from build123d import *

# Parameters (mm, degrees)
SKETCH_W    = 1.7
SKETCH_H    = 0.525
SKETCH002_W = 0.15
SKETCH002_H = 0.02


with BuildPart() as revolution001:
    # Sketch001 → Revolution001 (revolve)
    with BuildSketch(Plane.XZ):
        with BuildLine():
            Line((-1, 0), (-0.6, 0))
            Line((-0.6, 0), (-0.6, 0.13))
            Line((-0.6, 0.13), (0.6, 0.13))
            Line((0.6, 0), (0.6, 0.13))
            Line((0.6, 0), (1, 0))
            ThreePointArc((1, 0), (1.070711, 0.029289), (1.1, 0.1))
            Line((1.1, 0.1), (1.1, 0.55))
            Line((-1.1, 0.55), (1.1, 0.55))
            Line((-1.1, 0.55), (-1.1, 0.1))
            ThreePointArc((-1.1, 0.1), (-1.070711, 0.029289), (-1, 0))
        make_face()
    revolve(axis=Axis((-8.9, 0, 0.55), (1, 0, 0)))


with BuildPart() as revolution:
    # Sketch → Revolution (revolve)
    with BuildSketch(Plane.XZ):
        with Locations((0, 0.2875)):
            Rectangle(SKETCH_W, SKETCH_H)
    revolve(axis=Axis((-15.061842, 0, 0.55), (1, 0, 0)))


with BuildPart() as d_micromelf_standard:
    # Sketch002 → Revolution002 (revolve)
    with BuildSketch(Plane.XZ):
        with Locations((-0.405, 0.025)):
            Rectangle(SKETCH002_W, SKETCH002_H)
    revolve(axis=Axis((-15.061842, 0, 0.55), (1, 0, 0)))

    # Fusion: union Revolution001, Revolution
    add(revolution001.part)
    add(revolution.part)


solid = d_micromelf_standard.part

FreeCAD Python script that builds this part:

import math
import FreeCAD as App
import Part
import Sketcher


def add_polygon(sketch, points):
    """Adds a closed chain of lines whose ends are joined by coincident constraints."""
    first, n = sketch.GeometryCount, len(points)
    for a, b in zip(points, points[1:] + points[:1]):
        sketch.addGeometry(Part.LineSegment(App.Vector(*a, 0), App.Vector(*b, 0)), False)
    for i in range(n):
        sketch.addConstraint(Sketcher.Constraint("Coincident", first + i, 2, first + (i + 1) % n, 1))

doc = App.newDocument("Part")
body = doc.addObject("PartDesign::Body", "Body")

# Sketch on XZ plane
sketch1 = doc.addObject("Sketcher::SketchObject", "Sketch")
body.addObject(sketch1)
sketch1.AttachmentSupport = (doc.XZ_Plane, [""])
sketch1.MapMode = "FlatFace"
sketch1.addGeometry([
    Part.LineSegment(App.Vector(-1, 0, 0), App.Vector(-0.6, 0, 0)),  # 0
    Part.LineSegment(App.Vector(-0.6, 0, 0), App.Vector(-0.6, 0.13, 0)),  # 1
    Part.LineSegment(App.Vector(-0.6, 0.13, 0), App.Vector(0.6, 0.13, 0)),  # 2
    Part.LineSegment(App.Vector(0.6, 0.13, 0), App.Vector(0.6, 0, 0)),  # 3
    Part.LineSegment(App.Vector(0.6, 0, 0), App.Vector(1, 0, 0)),  # 4
    Part.ArcOfCircle(Part.Circle(App.Vector(1, 0.1, 0), App.Vector(0, 0, 1), 0.1), math.radians(-90), math.radians(0)),  # 5
    Part.LineSegment(App.Vector(1.1, 0.1, 0), App.Vector(1.1, 0.55, 0)),  # 6
    Part.LineSegment(App.Vector(1.1, 0.55, 0), App.Vector(-1.1, 0.55, 0)),  # 7
    Part.LineSegment(App.Vector(-1.1, 0.55, 0), App.Vector(-1.1, 0.1, 0)),  # 8
    Part.ArcOfCircle(Part.Circle(App.Vector(-1, 0.1, 0), App.Vector(0, 0, 1), 0.1), math.radians(180), math.radians(270)),  # 9
], False)
sketch1.addGeometry(Part.LineSegment(App.Vector(-1.1, 0.55, 0), App.Vector(1.1, 0.55, 0)), True)  # axis
sketch1.addConstraint([
    Sketcher.Constraint("Coincident", 0, 2, 1, 1),
    Sketcher.Constraint("Coincident", 1, 2, 2, 1),
    Sketcher.Constraint("Coincident", 2, 2, 3, 1),
    Sketcher.Constraint("Coincident", 3, 2, 4, 1),
    Sketcher.Constraint("Coincident", 4, 2, 5, 1),
    Sketcher.Constraint("Coincident", 5, 2, 6, 1),
    Sketcher.Constraint("Coincident", 6, 2, 7, 1),
    Sketcher.Constraint("Coincident", 7, 2, 8, 1),
    Sketcher.Constraint("Coincident", 8, 2, 9, 1),
    Sketcher.Constraint("Coincident", 9, 2, 0, 1),
    Sketcher.Constraint("Horizontal", 0),
    Sketcher.Constraint("Vertical", 1),
    Sketcher.Constraint("Horizontal", 2),
    Sketcher.Constraint("Vertical", 3),
    Sketcher.Constraint("Horizontal", 4),
    Sketcher.Constraint("Vertical", 6),
    Sketcher.Constraint("Horizontal", 7),
    Sketcher.Constraint("Vertical", 8),
    Sketcher.Constraint("Horizontal", 10),
    Sketcher.Constraint("Coincident", 10, 1, 7, 2),
    Sketcher.Constraint("Equal", 5, 9),
    Sketcher.Constraint("Symmetric", 0, 2, 3, 2, -1, 1),
    Sketcher.Constraint("Symmetric", 5, 3, 9, 3, -2),
    Sketcher.Constraint("Horizontal", 9, 3, 5, 2),
    Sketcher.Constraint("Horizontal", 5, 2, 8, 2),
    Sketcher.Constraint("Vertical", 5, 3, 4, 2),
    Sketcher.Constraint("Vertical", 5, 2, 10, 2),
    Sketcher.Constraint("Equal", 0, 4),
    Sketcher.Constraint("Radius", 5, 0.099999),
    Sketcher.Constraint("DistanceX", 0, 1, 0, 2, 0.4),
    Sketcher.Constraint("DistanceX", 2, 1, 2, 2, 1.2),
    Sketcher.Constraint("DistanceY", 1, 1, 1, 2, 0.13),
    Sketcher.Constraint("DistanceY", 6, 1, 6, 2, 0.45),
])
revolution = doc.addObject("PartDesign::Revolution", "Revolution")
body.addObject(revolution)
revolution.Profile = sketch1
revolution.ReferenceAxis = (sketch1, ["Axis0"])
revolution.Angle = 360
body2 = doc.addObject("PartDesign::Body", "Body001")

# Sketch on XZ plane
sketch2 = doc.addObject("Sketcher::SketchObject", "Sketch001")
body2.addObject(sketch2)
sketch2.AttachmentSupport = (doc.getObject("XZ_Plane001"), [""])
sketch2.MapMode = "FlatFace"
add_polygon(sketch2, [(-0.8, 0.6), (-0.8, 0), (0.8, 0), (0.8, 0.6)])  # lines 0-3
sketch2.addGeometry(Part.LineSegment(App.Vector(-0.8, 0.6, 0), App.Vector(0.8, 0.6, 0)), True)  # axis
sketch2.addConstraint([
    Sketcher.Constraint("Vertical", 0),
    Sketcher.Constraint("Horizontal", 1),
    Sketcher.Constraint("Vertical", 2),
    Sketcher.Constraint("Horizontal", 3),
    Sketcher.Constraint("Horizontal", 4),
    Sketcher.Constraint("Coincident", 4, 1, 3, 2),
    Sketcher.Constraint("Vertical", 1, 2, 4, 2),
    Sketcher.Constraint("DistanceX", 1, 1, 1, 2, 1.7),
    Sketcher.Constraint("DistanceY", 0, 2, 0, 1, 0.525),
    Sketcher.Constraint("DistanceX", 0, 2, -1, 1, 0.85),
    Sketcher.Constraint("DistanceY", -1, 1, 2, 2, 0.55),
])
revolution2 = doc.addObject("PartDesign::Revolution", "Revolution001")
body2.addObject(revolution2)
revolution2.Profile = sketch2
revolution2.ReferenceAxis = (sketch2, ["Axis0"])
revolution2.Angle = 360
body3 = doc.addObject("PartDesign::Body", "Body002")
body3.AllowCompound = True

# Sketch on XZ plane
sketch3 = doc.addObject("Sketcher::SketchObject", "Sketch002")
body3.addObject(sketch3)
sketch3.AttachmentSupport = (doc.getObject("XZ_Plane002"), [""])
sketch3.MapMode = "FlatFace"
add_polygon(sketch3, [(-0.48, 0.035), (-0.48, 0.015), (-0.33, 0.015), (-0.33, 0.035)])  # lines 0-3
sketch3.addGeometry(Part.LineSegment(App.Vector(-0.48, 0.55, 0), App.Vector(-0.33, 0.55, 0)), True)  # axis
sketch3.addConstraint([
    Sketcher.Constraint("Vertical", 0),
    Sketcher.Constraint("Horizontal", 1),
    Sketcher.Constraint("Vertical", 2),
    Sketcher.Constraint("Horizontal", 3),
    Sketcher.Constraint("Horizontal", 4),
    Sketcher.Constraint("Vertical", 3, 2, 4, 1),
    Sketcher.Constraint("Vertical", 2, 2, 4, 2),
    Sketcher.Constraint("DistanceX", 1, 1, 1, 2, 0.15),
    Sketcher.Constraint("DistanceY", 0, 2, 0, 1, 0.02),
    Sketcher.Constraint("DistanceX", 0, 2, -1, 1, 0.48),
    Sketcher.Constraint("DistanceY", -1, 1, 4, 1, 0.55),
    Sketcher.Constraint("DistanceY", -1, 1, 0, 2, 0.015),
])
revolution3 = doc.addObject("PartDesign::Revolution", "Revolution002")
body3.addObject(revolution3)
revolution3.Profile = sketch3
revolution3.ReferenceAxis = (sketch3, ["Axis0"])
revolution3.Angle = 360
doc.recompute()

boolean = doc.addObject("PartDesign::Boolean", "Boolean")
body3.addObject(boolean)
boolean.Type = "Fuse"
boolean.addObjects([body])
doc.recompute()

boolean2 = doc.addObject("PartDesign::Boolean", "Boolean001")
body3.addObject(boolean2)
boolean2.Type = "Fuse"
boolean2.addObjects([body2])

doc.recompute()
